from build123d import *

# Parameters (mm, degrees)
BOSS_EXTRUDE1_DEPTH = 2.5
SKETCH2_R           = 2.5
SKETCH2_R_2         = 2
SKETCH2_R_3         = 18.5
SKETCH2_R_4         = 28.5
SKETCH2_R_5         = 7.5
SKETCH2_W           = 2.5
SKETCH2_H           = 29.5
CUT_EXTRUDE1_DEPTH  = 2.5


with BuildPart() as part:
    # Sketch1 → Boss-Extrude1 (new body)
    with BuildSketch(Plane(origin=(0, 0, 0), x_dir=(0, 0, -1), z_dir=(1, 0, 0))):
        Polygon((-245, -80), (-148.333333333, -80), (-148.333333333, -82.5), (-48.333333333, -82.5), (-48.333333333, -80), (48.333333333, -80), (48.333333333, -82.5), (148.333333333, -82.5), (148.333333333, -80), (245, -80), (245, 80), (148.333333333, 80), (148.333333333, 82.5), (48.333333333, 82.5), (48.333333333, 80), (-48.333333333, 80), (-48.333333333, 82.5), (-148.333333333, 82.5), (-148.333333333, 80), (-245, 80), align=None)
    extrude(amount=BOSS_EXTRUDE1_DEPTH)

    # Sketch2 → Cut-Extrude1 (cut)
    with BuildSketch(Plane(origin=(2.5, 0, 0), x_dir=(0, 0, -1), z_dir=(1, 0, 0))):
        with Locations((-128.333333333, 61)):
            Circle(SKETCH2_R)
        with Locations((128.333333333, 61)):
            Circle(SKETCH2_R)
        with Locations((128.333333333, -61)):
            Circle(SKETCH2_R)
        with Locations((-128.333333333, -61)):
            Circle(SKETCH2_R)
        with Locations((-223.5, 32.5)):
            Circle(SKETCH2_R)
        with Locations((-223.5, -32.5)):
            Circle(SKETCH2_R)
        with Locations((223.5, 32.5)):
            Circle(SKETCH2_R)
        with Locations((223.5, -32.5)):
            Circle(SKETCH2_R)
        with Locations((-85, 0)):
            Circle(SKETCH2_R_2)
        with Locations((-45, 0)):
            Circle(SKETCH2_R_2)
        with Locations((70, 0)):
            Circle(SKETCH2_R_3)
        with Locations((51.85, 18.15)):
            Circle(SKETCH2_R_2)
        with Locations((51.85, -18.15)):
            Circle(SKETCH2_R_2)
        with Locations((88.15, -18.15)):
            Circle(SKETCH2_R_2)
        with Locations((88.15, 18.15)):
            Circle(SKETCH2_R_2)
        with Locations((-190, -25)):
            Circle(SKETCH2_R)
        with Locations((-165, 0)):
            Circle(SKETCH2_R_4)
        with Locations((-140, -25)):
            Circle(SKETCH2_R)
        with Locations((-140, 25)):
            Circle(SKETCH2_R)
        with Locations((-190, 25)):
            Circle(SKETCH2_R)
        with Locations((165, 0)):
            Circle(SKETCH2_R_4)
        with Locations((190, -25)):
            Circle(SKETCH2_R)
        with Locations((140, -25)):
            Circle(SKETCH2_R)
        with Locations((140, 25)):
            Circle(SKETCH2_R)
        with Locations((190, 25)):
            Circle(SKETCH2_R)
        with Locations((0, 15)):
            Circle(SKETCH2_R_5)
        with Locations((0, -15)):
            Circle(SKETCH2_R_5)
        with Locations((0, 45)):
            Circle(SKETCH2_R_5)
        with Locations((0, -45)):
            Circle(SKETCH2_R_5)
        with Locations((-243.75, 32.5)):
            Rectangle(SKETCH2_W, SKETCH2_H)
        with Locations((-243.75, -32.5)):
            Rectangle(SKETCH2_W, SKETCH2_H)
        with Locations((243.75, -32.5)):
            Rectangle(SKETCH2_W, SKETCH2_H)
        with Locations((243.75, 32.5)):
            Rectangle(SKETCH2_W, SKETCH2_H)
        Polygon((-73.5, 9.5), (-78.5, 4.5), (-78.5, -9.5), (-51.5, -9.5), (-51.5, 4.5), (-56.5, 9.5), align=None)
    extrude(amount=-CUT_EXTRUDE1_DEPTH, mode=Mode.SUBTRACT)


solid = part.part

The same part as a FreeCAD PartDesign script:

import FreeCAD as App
import Part
import Sketcher

V = App.Vector

doc = App.newDocument("Part")
body = doc.addObject("PartDesign::Body", "Body")

sketch1 = body.newObject("Sketcher::SketchObject", "Sketch")
sketch1.AttachmentSupport = (doc.getObject("YZ_Plane"), [""])
sketch1.MapMode = "FlatFace"
sketch1.addGeometry([
    Part.LineSegment(V(-80, 245, 0), V(-80, 148.3, 0)),
    Part.LineSegment(V(-80, 148.3, 0), V(-82.5, 148.3, 0)),
    Part.LineSegment(V(-82.5, 148.3, 0), V(-82.5, 48.3, 0)),
    Part.LineSegment(V(-82.5, 48.3, 0), V(-80, 48.3, 0)),
    Part.LineSegment(V(-80, 48.3, 0), V(-80, -48.3, 0)),
    Part.LineSegment(V(-80, -48.3, 0), V(-82.5, -48.3, 0)),
    Part.LineSegment(V(-82.5, -48.3, 0), V(-82.5, -148.3, 0)),
    Part.LineSegment(V(-82.5, -148.3, 0), V(-80, -148.3, 0)),
    Part.LineSegment(V(-80, -148.3, 0), V(-80, -245, 0)),
    Part.LineSegment(V(-80, -245, 0), V(80, -245, 0)),
    Part.LineSegment(V(80, -245, 0), V(80, -148.3, 0)),
    Part.LineSegment(V(80, -148.3, 0), V(82.5, -148.3, 0)),
    Part.LineSegment(V(82.5, -148.3, 0), V(82.5, -48.3, 0)),
    Part.LineSegment(V(82.5, -48.3, 0), V(80, -48.3, 0)),
    Part.LineSegment(V(80, -48.3, 0), V(80, 48.3, 0)),
    Part.LineSegment(V(80, 48.3, 0), V(82.5, 48.3, 0)),
    Part.LineSegment(V(82.5, 48.3, 0), V(82.5, 148.3, 0)),
    Part.LineSegment(V(82.5, 148.3, 0), V(80, 148.3, 0)),
    Part.LineSegment(V(80, 148.3, 0), V(80, 245, 0)),
    Part.LineSegment(V(80, 245, 0), V(-80, 245, 0)),
], False)
sketch1.addConstraint([
    Sketcher.Constraint("Coincident", 0, 2, 1, 1),
    Sketcher.Constraint("Coincident", 1, 2, 2, 1),
    Sketcher.Constraint("Coincident", 2, 2, 3, 1),
    Sketcher.Constraint("Coincident", 3, 2, 4, 1),
    Sketcher.Constraint("Coincident", 4, 2, 5, 1),
    Sketcher.Constraint("Coincident", 5, 2, 6, 1),
    Sketcher.Constraint("Coincident", 6, 2, 7, 1),
    Sketcher.Constraint("Coincident", 7, 2, 8, 1),
    Sketcher.Constraint("Coincident", 8, 2, 9, 1),
    Sketcher.Constraint("Coincident", 9, 2, 10, 1),
    Sketcher.Constraint("Coincident", 10, 2, 11, 1),
    Sketcher.Constraint("Coincident", 11, 2, 12, 1),
    Sketcher.Constraint("Coincident", 12, 2, 13, 1),
    Sketcher.Constraint("Coincident", 13, 2, 14, 1),
    Sketcher.Constraint("Coincident", 14, 2, 15, 1),
    Sketcher.Constraint("Coincident", 15, 2, 16, 1),
    Sketcher.Constraint("Coincident", 16, 2, 17, 1),
    Sketcher.Constraint("Coincident", 17, 2, 18, 1),
    Sketcher.Constraint("Coincident", 18, 2, 19, 1),
    Sketcher.Constraint("Coincident", 19, 2, 0, 1),
    Sketcher.Constraint("Vertical", 0),
    Sketcher.Constraint("Horizontal", 1),
    Sketcher.Constraint("Vertical", 2),
    Sketcher.Constraint("Horizontal", 3),
    Sketcher.Constraint("Vertical", 4),
    Sketcher.Constraint("Horizontal", 5),
    Sketcher.Constraint("Vertical", 6),
    Sketcher.Constraint("Horizontal", 7),
    Sketcher.Constraint("Vertical", 8),
    Sketcher.Constraint("Horizontal", 9),
    Sketcher.Constraint("Vertical", 10),
    Sketcher.Constraint("Horizontal", 11),
    Sketcher.Constraint("Vertical", 12),
    Sketcher.Constraint("Horizontal", 13),
    Sketcher.Constraint("Vertical", 14),
    Sketcher.Constraint("Horizontal", 15),
    Sketcher.Constraint("Vertical", 16),
    Sketcher.Constraint("Horizontal", 17),
    Sketcher.Constraint("Vertical", 18),
    Sketcher.Constraint("Horizontal", 19),
    Sketcher.Constraint("Symmetric", 0, 2, 10, 2, -1, 1),
    Sketcher.Constraint("Symmetric", 2, 2, 12, 2, -1, 1),
    Sketcher.Constraint("Symmetric", 4, 2, 14, 2, -1, 1),
    Sketcher.Constraint("Symmetric", 6, 2, 16, 2, -1, 1),
    Sketcher.Constraint("Symmetric", 8, 2, 18, 2, -1, 1),
    Sketcher.Constraint("Symmetric", 7, 2, 10, 2, -2),
    Sketcher.Constraint("Symmetric", 5, 2, 12, 2, -2),
    Sketcher.Constraint("Vertical", 0, 2, 3, 2),
    Sketcher.Constraint("Equal", 0, 4),
    Sketcher.Constraint("DistanceX", 9, 1, 9, 2, 160.0),
    Sketcher.Constraint("DistanceY", 2, 2, 2, 1, 100.0),
    Sketcher.Constraint("DistanceX", 1, 2, 1, 1, 2.5),
    Sketcher.Constraint("DistanceY", 8, 2, -1, 1, 245.0),
])
pad1 = body.newObject("PartDesign::Pad", "Pad")
pad1.Profile = sketch1
pad1.Length = 2.5

sketch2 = body.newObject("Sketcher::SketchObject", "Sketch001")
sketch2.AttachmentSupport = (doc.getObject("YZ_Plane"), [""])
sketch2.MapMode = "FlatFace"
sketch2.AttachmentOffset = App.Placement(V(0, 0, 2.5), App.Rotation())
sketch2.addGeometry([
    Part.Circle(V(61, 128.3, 0), V(0, 0, 1), 2.5),
    Part.Circle(V(61, -128.3, 0), V(0, 0, 1), 2.5),
    Part.Circle(V(-61, -128.3, 0), V(0, 0, 1), 2.5),
    Part.Circle(V(-61, 128.3, 0), V(0, 0, 1), 2.5),
    Part.Circle(V(32.5, 223.5, 0), V(0, 0, 1), 2.5),
    Part.Circle(V(-32.5, 223.5, 0), V(0, 0, 1), 2.5),
    Part.Circle(V(32.5, -223.5, 0), V(0, 0, 1), 2.5),
    Part.Circle(V(-32.5, -223.5, 0), V(0, 0, 1), 2.5),
    Part.Circle(V(0, 85, 0), V(0, 0, 1), 2),
    Part.Circle(V(0, 45, 0), V(0, 0, 1), 2),
    Part.Circle(V(0, -70, 0), V(0, 0, 1), 18.5),
    Part.Circle(V(18.1, -51.9, 0), V(0, 0, 1), 2),
    Part.Circle(V(-18.1, -51.9, 0), V(0, 0, 1), 2),
    Part.Circle(V(-18.1, -88.2, 0), V(0, 0, 1), 2),
    Part.Circle(V(18.1, -88.2, 0), V(0, 0, 1), 2),
    Part.Circle(V(-25, 190, 0), V(0, 0, 1), 2.5),
    Part.Circle(V(0, 165, 0), V(0, 0, 1), 28.5),
    Part.Circle(V(-25, 140, 0), V(0, 0, 1), 2.5),
    Part.Circle(V(25, 140, 0), V(0, 0, 1), 2.5),
    Part.Circle(V(25, 190, 0), V(0, 0, 1), 2.5),
    Part.Circle(V(0, -165, 0), V(0, 0, 1), 28.5),
    Part.Circle(V(-25, -190, 0), V(0, 0, 1), 2.5),
    Part.Circle(V(-25, -140, 0), V(0, 0, 1), 2.5),
    Part.Circle(V(25, -140, 0), V(0, 0, 1), 2.5),
    Part.Circle(V(25, -190, 0), V(0, 0, 1), 2.5),
    Part.Circle(V(15, 0, 0), V(0, 0, 1), 7.5),
    Part.Circle(V(-15, 0, 0), V(0, 0, 1), 7.5),
    Part.Circle(V(45, 0, 0), V(0, 0, 1), 7.5),
    Part.Circle(V(-45, 0, 0), V(0, 0, 1), 7.5),
    Part.LineSegment(V(47.2, 245, 0), V(17.8, 245, 0)),
    Part.LineSegment(V(17.8, 245, 0), V(17.8, 242.5, 0)),
    Part.LineSegment(V(17.8, 242.5, 0), V(47.2, 242.5, 0)),
    Part.LineSegment(V(47.2, 242.5, 0), V(47.2, 245, 0)),
    Part.LineSegment(V(-17.8, 245, 0), V(-47.2, 245, 0)),
    Part.LineSegment(V(-47.2, 245, 0), V(-47.2, 242.5, 0)),
    Part.LineSegment(V(-47.2, 242.5, 0), V(-17.8, 242.5, 0)),
    Part.LineSegment(V(-17.8, 242.5, 0), V(-17.8, 245, 0)),
    Part.LineSegment(V(-17.8, -242.5, 0), V(-47.2, -242.5, 0)),
    Part.LineSegment(V(-47.2, -242.5, 0), V(-47.2, -245, 0)),
    Part.LineSegment(V(-47.2, -245, 0), V(-17.8, -245, 0)),
    Part.LineSegment(V(-17.8, -245, 0), V(-17.8, -242.5, 0)),
    Part.LineSegment(V(47.2, -242.5, 0), V(17.8, -242.5, 0)),
    Part.LineSegment(V(17.8, -242.5, 0), V(17.8, -245, 0)),
    Part.LineSegment(V(17.8, -245, 0), V(47.2, -245, 0)),
    Part.LineSegment(V(47.2, -245, 0), V(47.2, -242.5, 0)),
    Part.LineSegment(V(9.5, 73.5, 0), V(4.5, 78.5, 0)),
    Part.LineSegment(V(4.5, 78.5, 0), V(-9.5, 78.5, 0)),
    Part.LineSegment(V(-9.5, 78.5, 0), V(-9.5, 51.5, 0)),
    Part.LineSegment(V(-9.5, 51.5, 0), V(4.5, 51.5, 0)),
    Part.LineSegment(V(4.5, 51.5, 0), V(9.5, 56.5, 0)),
    Part.LineSegment(V(9.5, 56.5, 0), V(9.5, 73.5, 0)),
], False)
sketch2.addConstraint([
    Sketcher.Constraint("Coincident", 29, 2, 30, 1),
    Sketcher.Constraint("Coincident", 30, 2, 31, 1),
    Sketcher.Constraint("Coincident", 31, 2, 32, 1),
    Sketcher.Constraint("Coincident", 32, 2, 29, 1),
    Sketcher.Constraint("Coincident", 33, 2, 34, 1),
    Sketcher.Constraint("Coincident", 34, 2, 35, 1),
    Sketcher.Constraint("Coincident", 35, 2, 36, 1),
    Sketcher.Constraint("Coincident", 36, 2, 33, 1),
    Sketcher.Constraint("Coincident", 37, 2, 38, 1),
    Sketcher.Constraint("Coincident", 38, 2, 39, 1),
    Sketcher.Constraint("Coincident", 39, 2, 40, 1),
    Sketcher.Constraint("Coincident", 40, 2, 37, 1),
    Sketcher.Constraint("Coincident", 41, 2, 42, 1),
    Sketcher.Constraint("Coincident", 42, 2, 43, 1),
    Sketcher.Constraint("Coincident", 43, 2, 44, 1),
    Sketcher.Constraint("Coincident", 44, 2, 41, 1),
    Sketcher.Constraint("Coincident", 45, 2, 46, 1),
    Sketcher.Constraint("Coincident", 46, 2, 47, 1),
    Sketcher.Constraint("Coincident", 47, 2, 48, 1),
    Sketcher.Constraint("Coincident", 48, 2, 49, 1),
    Sketcher.Constraint("Coincident", 49, 2, 50, 1),
    Sketcher.Constraint("Coincident", 50, 2, 45, 1),
    Sketcher.Constraint("Horizontal", 29),
    Sketcher.Constraint("Vertical", 30),
    Sketcher.Constraint("Horizontal", 31),
    Sketcher.Constraint("Vertical", 32),
    Sketcher.Constraint("Horizontal", 33),
    Sketcher.Constraint("Vertical", 34),
    Sketcher.Constraint("Horizontal", 35),
    Sketcher.Constraint("Vertical", 36),
    Sketcher.Constraint("Horizontal", 37),
    Sketcher.Constraint("Vertical", 38),
    Sketcher.Constraint("Horizontal", 39),
    Sketcher.Constraint("Vertical", 40),
    Sketcher.Constraint("Horizontal", 41),
    Sketcher.Constraint("Vertical", 42),
    Sketcher.Constraint("Horizontal", 43),
    Sketcher.Constraint("Vertical", 44),
    Sketcher.Constraint("Horizontal", 46),
    Sketcher.Constraint("Vertical", 47),
    Sketcher.Constraint("Horizontal", 48),
    Sketcher.Constraint("Vertical", 50),
    Sketcher.Constraint("Equal", 0, 1),
    Sketcher.Constraint("Equal", 1, 2),
    Sketcher.Constraint("Equal", 2, 3),
    Sketcher.Constraint("Equal", 3, 4),
    Sketcher.Constraint("Equal", 4, 5),
    Sketcher.Constraint("Equal", 5, 6),
    Sketcher.Constraint("Equal", 6, 7),
    Sketcher.Constraint("Equal", 8, 9),
    Sketcher.Constraint("Equal", 9, 11),
    Sketcher.Constraint("Equal", 11, 12),
    Sketcher.Constraint("Equal", 12, 13),
    Sketcher.Constraint("Equal", 13, 14),
    Sketcher.Constraint("Equal", 7, 15),
    Sketcher.Constraint("Equal", 15, 17),
    Sketcher.Constraint("Equal", 17, 18),
    Sketcher.Constraint("Equal", 18, 19),
    Sketcher.Constraint("Equal", 16, 20),
    Sketcher.Constraint("Equal", 19, 21),
    Sketcher.Constraint("Equal", 21, 22),
    Sketcher.Constraint("Equal", 22, 23),
    Sketcher.Constraint("Equal", 23, 24),
    Sketcher.Constraint("Equal", 25, 26),
    Sketcher.Constraint("Equal", 26, 27),
    Sketcher.Constraint("Equal", 27, 28),
    Sketcher.Constraint("Symmetric", 0, 3, 2, 3, -1, 1),
    Sketcher.Constraint("Symmetric", 1, 3, 3, 3, -1, 1),
    Sketcher.Constraint("Symmetric", 5, 3, 6, 3, -1, 1),
    Sketcher.Constraint("Symmetric", 4, 3, 7, 3, -1, 1),
    Sketcher.Constraint("Symmetric", 16, 3, 20, 3, -1, 1),
    Sketcher.Constraint("Symmetric", 19, 3, 21, 3, -1, 1),
    Sketcher.Constraint("Symmetric", 18, 3, 22, 3, -1, 1),
    Sketcher.Constraint("Symmetric", 17, 3, 23, 3, -1, 1),
    Sketcher.Constraint("Symmetric", 15, 3, 24, 3, -1, 1),
    Sketcher.Constraint("Symmetric", 25, 3, 26, 3, -1, 1),
    Sketcher.Constraint("Symmetric", 27, 3, 28, 3, -1, 1),
    Sketcher.Constraint("Symmetric", 31, 2, 37, 2, -1, 1),
    Sketcher.Constraint("Symmetric", 29, 2, 39, 2, -1, 1),
    Sketcher.Constraint("Symmetric", 35, 2, 41, 2, -1, 1),
    Sketcher.Constraint("Symmetric", 33, 2, 43, 2, -1, 1),
    Sketcher.Constraint("Symmetric", 1, 3, 2, 3, -2),
    Sketcher.Constraint("Symmetric", 4, 3, 5, 3, -2),
    Sketcher.Constraint("Symmetric", 11, 3, 12, 3, -2),
    Sketcher.Constraint("Symmetric", 13, 3, 14, 3, -2),
    Sketcher.Constraint("Symmetric", 17, 3, 18, 3, -2),
    Sketcher.Constraint("Symmetric", 15, 3, 19, 3, -2),
    Sketcher.Constraint("Symmetric", 32, 2, 33, 2, -2),
    Sketcher.Constraint("Symmetric", 30, 2, 35, 2, -2),
    Sketcher.Constraint("PointOnObject", 8, 3, -2),
    Sketcher.Constraint("PointOnObject", 9, 3, -2),
    Sketcher.Constraint("PointOnObject", 10, 3, -2),
    Sketcher.Constraint("PointOnObject", 16, 3, -2),
    Sketcher.Constraint("PointOnObject", 25, 3, -1),
    Sketcher.Constraint("PointOnObject", 27, 3, -1),
    Sketcher.Constraint("Perpendicular", 45, 49),
    Sketcher.Constraint("Vertical", 12, 3, 13, 3),
    Sketcher.Constraint("Vertical", 15, 3, 17, 3),
    Sketcher.Constraint("Vertical", 45, 2, 48, 2),
    Sketcher.Constraint("Equal", 45, 49),
    Sketcher.Constraint("Diameter", 0, 5.0),
    Sketcher.Constraint("Diameter", 8, 4.0),
    Sketcher.Constraint("Diameter", 10, 37.0),
    Sketcher.Constraint("Diameter", 16, 57.0),
    Sketcher.Constraint("Diameter", 25, 15.0),
    Sketcher.Constraint("DistanceX", 46, 2, 46, 1, 14.0),
    Sketcher.Constraint("DistanceY", 47, 2, 47, 1, 27.0),
    Sketcher.Constraint("DistanceY", 50, 1, 50, 2, 17.0),
    Sketcher.Constraint("DistanceX", 29, 2, 29, 1, 29.5),
    Sketcher.Constraint("DistanceY", 30, 2, 30, 1, 2.5),
    Sketcher.Constraint("DistanceX", -1, 1, 0, 3, 61.0),
    Sketcher.Constraint("DistanceY", -1, 1, 8, 3, 85.0),
    Sketcher.Constraint("DistanceY", -1, 1, 9, 3, 45.0),
    Sketcher.Constraint("DistanceY", 10, 3, -1, 1, 70.0),
    Sketcher.Constraint("DistanceX", 15, 3, -1, 1, 25.0),
    Sketcher.Constraint("DistanceY", -1, 1, 15, 3, 190.0),
    Sketcher.Constraint("DistanceY", -1, 1, 16, 3, 165.0),
    Sketcher.Constraint("DistanceY", -1, 1, 17, 3, 140.0),
    Sketcher.Constraint("DistanceX", -1, 1, 25, 3, 15.0),
    Sketcher.Constraint("DistanceX", -1, 1, 27, 3, 45.0),
    Sketcher.Constraint("DistanceY", -1, 1, 29, 2, 245.0),
    Sketcher.Constraint("DistanceX", 5, 3, 4, 3, 65.0),
    Sketcher.Constraint("DistanceY", 6, 3, 4, 3, 447.0),
    Sketcher.Constraint("DistanceX", 33, 2, 29, 2, 65.0),
    Sketcher.Constraint("DistanceX", -1, 1, 45, 2, 4.5),
    Sketcher.Constraint("DistanceY", -1, 1, 45, 2, 78.5),
    Sketcher.Constraint("DistanceX", 12, 3, 11, 3, 36.3),
    Sketcher.Constraint("DistanceY", 13, 3, 12, 3, 36.3),
    Sketcher.Constraint("DistanceY", 11, 3, -1, 1, 51.85),
    Sketcher.Constraint("DistanceY", -1, 1, 0, 3, 128.333333),
])
pocket1 = body.newObject("PartDesign::Pocket", "Pocket")
pocket1.Profile = sketch2
pocket1.Length = 2.5

doc.recompute()
